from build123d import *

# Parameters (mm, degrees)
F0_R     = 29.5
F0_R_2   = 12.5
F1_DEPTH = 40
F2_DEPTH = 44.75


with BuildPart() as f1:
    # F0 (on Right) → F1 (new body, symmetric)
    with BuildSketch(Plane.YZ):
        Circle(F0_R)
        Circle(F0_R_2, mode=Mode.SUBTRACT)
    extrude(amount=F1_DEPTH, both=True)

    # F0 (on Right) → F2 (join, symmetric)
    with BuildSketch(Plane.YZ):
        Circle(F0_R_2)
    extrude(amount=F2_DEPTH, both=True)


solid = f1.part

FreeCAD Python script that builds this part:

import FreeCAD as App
import Part
import Sketcher
Q = App.Units.Quantity

doc = App.newDocument("Part")
params = doc.addObject("Spreadsheet::Sheet", "Params")
for row, (alias, value) in enumerate([
    ("sketch1_diameter", "59 mm"),
    ("sketch1_diameter2", "25 mm"),
    ("pad1_length", "80 mm"),
    ("sketch2_diameter", "25 mm"),
    ("pad2_length", "89.5 mm"),
], start=1):
    params.set(f"A{row}", alias)
    params.set(f"B{row}", "=" + value)
    params.setAlias(f"B{row}", alias)

body = doc.addObject("PartDesign::Body", "Body")

sketch1 = doc.addObject("Sketcher::SketchObject", "Sketch")
body.addObject(sketch1)
sketch1.AttachmentSupport = (doc.YZ_Plane, [""])
sketch1.MapMode = "FlatFace"
sketch1.addGeometry([
    Part.Circle(App.Vector(0, 0, 0), App.Vector(0, 0, 1), 29.5),
    Part.Circle(App.Vector(0, 0, 0), App.Vector(0, 0, 1), 12.5),
], False)
sketch1.addConstraint([
    Sketcher.Constraint("Coincident", 0, 3, -1, 1),
    Sketcher.Constraint("Coincident", 1, 3, -1, 1),
    Sketcher.Constraint("Diameter", 0, Q("59 mm")),
    Sketcher.Constraint("Diameter", 1, Q("25 mm")),
])
sketch1.setExpression("Constraints[2]", "Params.sketch1_diameter")
sketch1.setExpression("Constraints[3]", "Params.sketch1_diameter2")
pad1 = doc.addObject("PartDesign::Pad", "Pad")
body.addObject(pad1)
pad1.Profile = sketch1
pad1.setExpression("Length", "Params.pad1_length")
pad1.Midplane = True

sketch2 = doc.addObject("Sketcher::SketchObject", "Sketch001")
body.addObject(sketch2)
sketch2.AttachmentSupport = (doc.YZ_Plane, [""])
sketch2.MapMode = "FlatFace"
sketch2.addGeometry(Part.Circle(App.Vector(0, 0, 0), App.Vector(0, 0, 1), 12.5), False)
sketch2.addConstraint([
    Sketcher.Constraint("Coincident", 0, 3, -1, 1),
    Sketcher.Constraint("Diameter", 0, Q("25 mm")),
])
sketch2.setExpression("Constraints[1]", "Params.sketch2_diameter")
pad2 = doc.addObject("PartDesign::Pad", "Pad001")
body.addObject(pad2)
pad2.Profile = sketch2
pad2.setExpression("Length", "Params.pad2_length")
pad2.Midplane = True

doc.recompute()
